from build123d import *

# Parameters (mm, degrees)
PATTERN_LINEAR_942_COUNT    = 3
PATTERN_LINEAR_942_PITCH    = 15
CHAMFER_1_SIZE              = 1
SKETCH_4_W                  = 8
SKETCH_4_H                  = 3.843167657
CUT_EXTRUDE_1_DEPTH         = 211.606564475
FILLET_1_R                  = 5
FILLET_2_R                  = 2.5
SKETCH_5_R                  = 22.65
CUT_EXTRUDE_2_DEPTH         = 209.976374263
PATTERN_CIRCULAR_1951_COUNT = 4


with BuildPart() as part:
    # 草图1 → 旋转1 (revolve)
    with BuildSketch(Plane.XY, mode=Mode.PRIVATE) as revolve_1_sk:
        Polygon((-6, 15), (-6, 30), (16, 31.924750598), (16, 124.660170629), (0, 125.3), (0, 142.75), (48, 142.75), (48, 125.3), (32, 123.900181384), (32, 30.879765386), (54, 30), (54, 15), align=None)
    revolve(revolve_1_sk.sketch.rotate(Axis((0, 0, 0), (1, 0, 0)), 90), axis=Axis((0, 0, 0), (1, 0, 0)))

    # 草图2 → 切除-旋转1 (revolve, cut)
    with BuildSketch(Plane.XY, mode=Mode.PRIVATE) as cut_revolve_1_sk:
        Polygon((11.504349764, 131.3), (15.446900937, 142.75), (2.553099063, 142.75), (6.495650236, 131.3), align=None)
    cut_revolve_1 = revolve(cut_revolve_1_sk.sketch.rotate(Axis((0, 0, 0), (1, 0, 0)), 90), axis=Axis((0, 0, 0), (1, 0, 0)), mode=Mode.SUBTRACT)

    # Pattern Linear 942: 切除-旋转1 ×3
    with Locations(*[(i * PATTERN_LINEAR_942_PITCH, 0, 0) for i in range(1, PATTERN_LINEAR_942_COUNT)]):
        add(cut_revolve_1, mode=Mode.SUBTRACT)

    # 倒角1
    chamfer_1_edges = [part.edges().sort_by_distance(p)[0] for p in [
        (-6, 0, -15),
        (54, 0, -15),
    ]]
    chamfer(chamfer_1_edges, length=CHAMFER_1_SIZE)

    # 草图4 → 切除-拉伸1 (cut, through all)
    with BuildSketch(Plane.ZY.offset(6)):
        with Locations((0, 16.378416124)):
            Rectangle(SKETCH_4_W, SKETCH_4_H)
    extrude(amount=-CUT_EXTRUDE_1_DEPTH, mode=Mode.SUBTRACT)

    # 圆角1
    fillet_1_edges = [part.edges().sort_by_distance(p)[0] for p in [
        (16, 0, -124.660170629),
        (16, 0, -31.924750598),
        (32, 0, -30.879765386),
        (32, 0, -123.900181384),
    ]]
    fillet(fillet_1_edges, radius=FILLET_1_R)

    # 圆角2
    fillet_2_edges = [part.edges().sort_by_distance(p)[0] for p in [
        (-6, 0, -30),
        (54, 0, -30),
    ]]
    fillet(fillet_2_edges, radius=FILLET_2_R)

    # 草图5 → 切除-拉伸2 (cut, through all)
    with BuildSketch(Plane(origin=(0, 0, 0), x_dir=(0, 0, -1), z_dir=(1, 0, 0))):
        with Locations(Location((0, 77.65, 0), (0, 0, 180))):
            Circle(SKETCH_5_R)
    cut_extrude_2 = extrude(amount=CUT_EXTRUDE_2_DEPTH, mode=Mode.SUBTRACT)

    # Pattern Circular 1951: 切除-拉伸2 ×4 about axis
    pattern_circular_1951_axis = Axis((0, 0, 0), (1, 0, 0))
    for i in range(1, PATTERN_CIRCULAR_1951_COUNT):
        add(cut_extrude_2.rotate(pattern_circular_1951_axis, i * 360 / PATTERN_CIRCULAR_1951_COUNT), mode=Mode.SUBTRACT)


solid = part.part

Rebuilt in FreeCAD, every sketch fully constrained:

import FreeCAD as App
import Part
import Sketcher
from FreeCAD import Vector
Q = App.Units.Quantity


def edges_at(feature, points):
    """Names of the edges that pass closest to the given points."""
    edges = feature.Shape.Edges
    near = lambda p: min(range(len(edges)), key=lambda i: edges[i].distToShape(Part.Vertex(*p))[0])
    return sorted({f"Edge{near(p) + 1}" for p in points})

doc = App.newDocument("Part")
body = doc.addObject("PartDesign::Body", "Body")

# Sketch on XY plane
sketch1 = body.newObject("Sketcher::SketchObject", "Sketch")
sketch1.AttachmentSupport = (doc.getObject("XY_Plane"), [""])
sketch1.MapMode = "FlatFace"
sketch1.addGeometry(Part.LineSegment(Vector(-6, 30, 0), Vector(-6, 15, 0)), False)
sketch1.addGeometry(Part.LineSegment(Vector(-6, 15, 0), Vector(54, 15, 0)), False)
sketch1.addGeometry(Part.LineSegment(Vector(54, 15, 0), Vector(54, 30, 0)), False)
sketch1.addGeometry(Part.LineSegment(Vector(54, 30, 0), Vector(32, 31, 0)), False)
sketch1.addGeometry(Part.LineSegment(Vector(32, 31, 0), Vector(32, 124, 0)), False)
sketch1.addGeometry(Part.LineSegment(Vector(32, 124, 0), Vector(48, 125, 0)), False)
sketch1.addGeometry(Part.LineSegment(Vector(48, 125, 0), Vector(48, 143, 0)), False)
sketch1.addGeometry(Part.LineSegment(Vector(48, 143, 0), Vector(0, 143, 0)), False)
sketch1.addGeometry(Part.LineSegment(Vector(0, 143, 0), Vector(0, 125, 0)), False)
sketch1.addGeometry(Part.LineSegment(Vector(0, 125, 0), Vector(16, 125, 0)), False)
sketch1.addGeometry(Part.LineSegment(Vector(16, 125, 0), Vector(16, 32, 0)), False)
sketch1.addGeometry(Part.LineSegment(Vector(16, 32, 0), Vector(-6, 30, 0)), False)
sketch1.addConstraint(Sketcher.Constraint("Coincident", 0, 2, 1, 1))
sketch1.addConstraint(Sketcher.Constraint("Coincident", 1, 2, 2, 1))
sketch1.addConstraint(Sketcher.Constraint("Coincident", 2, 2, 3, 1))
sketch1.addConstraint(Sketcher.Constraint("Coincident", 3, 2, 4, 1))
sketch1.addConstraint(Sketcher.Constraint("Coincident", 4, 2, 5, 1))
sketch1.addConstraint(Sketcher.Constraint("Coincident", 5, 2, 6, 1))
sketch1.addConstraint(Sketcher.Constraint("Coincident", 6, 2, 7, 1))
sketch1.addConstraint(Sketcher.Constraint("Coincident", 7, 2, 8, 1))
sketch1.addConstraint(Sketcher.Constraint("Coincident", 8, 2, 9, 1))
sketch1.addConstraint(Sketcher.Constraint("Coincident", 9, 2, 10, 1))
sketch1.addConstraint(Sketcher.Constraint("Coincident", 10, 2, 11, 1))
sketch1.addConstraint(Sketcher.Constraint("Coincident", 11, 2, 0, 1))
sketch1.addConstraint(Sketcher.Constraint("Vertical", 0))
sketch1.addConstraint(Sketcher.Constraint("Horizontal", 1))
sketch1.addConstraint(Sketcher.Constraint("Vertical", 2))
sketch1.addConstraint(Sketcher.Constraint("Vertical", 4))
sketch1.addConstraint(Sketcher.Constraint("Vertical", 6))
sketch1.addConstraint(Sketcher.Constraint("Horizontal", 7))
sketch1.addConstraint(Sketcher.Constraint("Vertical", 8))
sketch1.addConstraint(Sketcher.Constraint("Vertical", 10))
sketch1.addConstraint(Sketcher.Constraint("PointOnObject", 7, 2, -2))
sketch1.addConstraint(Sketcher.Constraint("Parallel", 3, 9))
sketch1.addConstraint(Sketcher.Constraint("Parallel", 5, 11))
sketch1.addConstraint(Sketcher.Constraint("Horizontal", 5, 2, 8, 2))
sketch1.addConstraint(Sketcher.Constraint("Horizontal", 2, 2, 11, 2))
sketch1.addConstraint(Sketcher.Constraint("DistanceX", 1, 1, 1, 2, Q("60 mm")))
sketch1.addConstraint(Sketcher.Constraint("DistanceX", 7, 2, 7, 1, Q("48 mm")))
sketch1.addConstraint(Sketcher.Constraint("DistanceY", 0, 2, 0, 1, Q("15 mm")))
sketch1.addConstraint(Sketcher.Constraint("Angle", 5, Q("5 deg")))
sketch1.addConstraint(Sketcher.Constraint("DistanceX", 0, 2, -1, 1, Q("6 mm")))
sketch1.addConstraint(Sketcher.Constraint("DistanceY", -1, 1, 0, 2, Q("15 mm")))
sketch1.addConstraint(Sketcher.Constraint("DistanceX", -1, 1, 3, 2, Q("32 mm")))
sketch1.addConstraint(Sketcher.Constraint("DistanceX", -1, 1, 9, 2, Q("16 mm")))
sketch1.addConstraint(Sketcher.Constraint("DistanceY", 6, 1, 6, 2, Q("17.45 mm")))
sketch1.addConstraint(Sketcher.Constraint("DistanceY", -1, 1, 5, 2, Q("125.3 mm")))
sketch1.addConstraint(Sketcher.Constraint("Angle", 3, Q("177.71 deg")))
revolution = body.newObject("PartDesign::Revolution", "Revolution")
revolution.Profile = sketch1
revolution.ReferenceAxis = (sketch1, ["H_Axis"])
revolution.Angle = 360

# Sketch on XY plane
sketch2 = body.newObject("Sketcher::SketchObject", "Sketch001")
sketch2.AttachmentSupport = (doc.getObject("XY_Plane"), [""])
sketch2.MapMode = "FlatFace"
sketch2.addGeometry(Part.LineSegment(Vector(12, 131, 0), Vector(15, 143, 0)), False)
sketch2.addGeometry(Part.LineSegment(Vector(15, 143, 0), Vector(3, 143, 0)), False)
sketch2.addGeometry(Part.LineSegment(Vector(3, 143, 0), Vector(6, 131, 0)), False)
sketch2.addGeometry(Part.LineSegment(Vector(6, 131, 0), Vector(12, 131, 0)), False)
sketch2.addConstraint(Sketcher.Constraint("Coincident", 0, 2, 1, 1))
sketch2.addConstraint(Sketcher.Constraint("Coincident", 1, 2, 2, 1))
sketch2.addConstraint(Sketcher.Constraint("Coincident", 2, 2, 3, 1))
sketch2.addConstraint(Sketcher.Constraint("Coincident", 3, 2, 0, 1))
sketch2.addConstraint(Sketcher.Constraint("Horizontal", 1))
sketch2.addConstraint(Sketcher.Constraint("Horizontal", 3))
sketch2.addConstraint(Sketcher.Constraint("Equal", 0, 2))
sketch2.addConstraint(Sketcher.Constraint("Angle", 0, Q("71 deg")))
sketch2.addConstraint(Sketcher.Constraint("DistanceY", -1, 1, 2, 2, Q("131.3 mm")))
sketch2.addConstraint(Sketcher.Constraint("DistanceY", -1, 1, 0, 2, Q("142.75 mm")))
sketch2.addConstraint(Sketcher.Constraint("DistanceX", 1, 2, 1, 1, Q("12.893802 mm")))
sketch2.addConstraint(Sketcher.Constraint("DistanceX", -1, 1, 0, 2, Q("15.446901 mm")))
groove = body.newObject("PartDesign::Groove", "Groove")
groove.Profile = sketch2
groove.ReferenceAxis = (sketch2, ["H_Axis"])
groove.Angle = 360
doc.recompute()

linearpattern = body.newObject("PartDesign::LinearPattern", "LinearPattern")
linearpattern.Originals = [groove]
linearpattern.Direction = (doc.getObject("X_Axis"), [""])
linearpattern.Mode = "offset"
linearpattern.Offset = 15
linearpattern.Occurrences = 3
body.Tip = linearpattern
doc.recompute()

chamfer = body.newObject("PartDesign::Chamfer", "Chamfer")
chamfer.Base = (linearpattern, edges_at(linearpattern, [(-6, 0, -15), (54, 0, -15)]))
chamfer.Size = 1

# Sketch on YZ plane
sketch3 = body.newObject("Sketcher::SketchObject", "Sketch002")
sketch3.AttachmentSupport = (doc.getObject("YZ_Plane"), [""])
sketch3.MapMode = "FlatFace"
sketch3.AttachmentOffset = App.Placement(Vector(0, 0, -6), App.Rotation())
sketch3.addGeometry(Part.LineSegment(Vector(18.3, -4, 0), Vector(14.5, -4, 0)), False)
sketch3.addGeometry(Part.LineSegment(Vector(14.5, -4, 0), Vector(14.5, 4, 0)), False)
sketch3.addGeometry(Part.LineSegment(Vector(14.5, 4, 0), Vector(18.3, 4, 0)), False)
sketch3.addGeometry(Part.LineSegment(Vector(18.3, 4, 0), Vector(18.3, -4, 0)), False)
sketch3.addConstraint(Sketcher.Constraint("Coincident", 0, 2, 1, 1))
sketch3.addConstraint(Sketcher.Constraint("Coincident", 1, 2, 2, 1))
sketch3.addConstraint(Sketcher.Constraint("Coincident", 2, 2, 3, 1))
sketch3.addConstraint(Sketcher.Constraint("Coincident", 3, 2, 0, 1))
sketch3.addConstraint(Sketcher.Constraint("Horizontal", 0))
sketch3.addConstraint(Sketcher.Constraint("Vertical", 1))
sketch3.addConstraint(Sketcher.Constraint("Horizontal", 2))
sketch3.addConstraint(Sketcher.Constraint("Vertical", 3))
sketch3.addConstraint(Sketcher.Constraint("DistanceY", 1, 1, 1, 2, Q("8 mm")))
sketch3.addConstraint(Sketcher.Constraint("DistanceY", 0, 2, -1, 1, Q("4 mm")))
sketch3.addConstraint(Sketcher.Constraint("DistanceX", -1, 1, 2, 2, Q("18.3 mm")))
sketch3.addConstraint(Sketcher.Constraint("DistanceX", 0, 2, 0, 1, Q("3.843168 mm")))
pocket1 = body.newObject("PartDesign::Pocket", "Pocket")
pocket1.Profile = sketch3
pocket1.Type = "ThroughAll"
pocket1.Reversed = True
doc.recompute()

fillet = body.newObject("PartDesign::Fillet", "Fillet")
fillet.Base = (pocket1, edges_at(pocket1, [
    (16, 0, -124.66),
    (16, 0, -31.925),
    (32, 0, -30.88),
    (32, 0, -123.9),
]))
fillet.Radius = 5
doc.recompute()

fillet2 = body.newObject("PartDesign::Fillet", "Fillet001")
fillet2.Base = (fillet, edges_at(fillet, [(-6, 0, -30), (54, 0, -30)]))
fillet2.Radius = 2.5

# Sketch on YZ plane
sketch4 = body.newObject("Sketcher::SketchObject", "Sketch003")
sketch4.AttachmentSupport = (doc.getObject("YZ_Plane"), [""])
sketch4.MapMode = "FlatFace"
sketch4.addGeometry(Part.Circle(Vector(78, 0, 0), Vector(0, 0, 1), 23), False)
sketch4.addConstraint(Sketcher.Constraint("PointOnObject", 0, 3, -1))
sketch4.addConstraint(Sketcher.Constraint("Diameter", 0, Q("45.3 mm")))
sketch4.addConstraint(Sketcher.Constraint("DistanceX", -1, 1, 0, 3, Q("77.65 mm")))
pocket2 = body.newObject("PartDesign::Pocket", "Pocket001")
pocket2.Profile = sketch4
pocket2.Type = "ThroughAll"
pocket2.Reversed = True
doc.recompute()

polarpattern = body.newObject("PartDesign::PolarPattern", "PolarPattern")
polarpattern.Originals = [pocket2]
polarpattern.Axis = (doc.getObject("X_Axis"), [""])
polarpattern.Angle = 360
polarpattern.Occurrences = 4
body.Tip = polarpattern

doc.recompute()
